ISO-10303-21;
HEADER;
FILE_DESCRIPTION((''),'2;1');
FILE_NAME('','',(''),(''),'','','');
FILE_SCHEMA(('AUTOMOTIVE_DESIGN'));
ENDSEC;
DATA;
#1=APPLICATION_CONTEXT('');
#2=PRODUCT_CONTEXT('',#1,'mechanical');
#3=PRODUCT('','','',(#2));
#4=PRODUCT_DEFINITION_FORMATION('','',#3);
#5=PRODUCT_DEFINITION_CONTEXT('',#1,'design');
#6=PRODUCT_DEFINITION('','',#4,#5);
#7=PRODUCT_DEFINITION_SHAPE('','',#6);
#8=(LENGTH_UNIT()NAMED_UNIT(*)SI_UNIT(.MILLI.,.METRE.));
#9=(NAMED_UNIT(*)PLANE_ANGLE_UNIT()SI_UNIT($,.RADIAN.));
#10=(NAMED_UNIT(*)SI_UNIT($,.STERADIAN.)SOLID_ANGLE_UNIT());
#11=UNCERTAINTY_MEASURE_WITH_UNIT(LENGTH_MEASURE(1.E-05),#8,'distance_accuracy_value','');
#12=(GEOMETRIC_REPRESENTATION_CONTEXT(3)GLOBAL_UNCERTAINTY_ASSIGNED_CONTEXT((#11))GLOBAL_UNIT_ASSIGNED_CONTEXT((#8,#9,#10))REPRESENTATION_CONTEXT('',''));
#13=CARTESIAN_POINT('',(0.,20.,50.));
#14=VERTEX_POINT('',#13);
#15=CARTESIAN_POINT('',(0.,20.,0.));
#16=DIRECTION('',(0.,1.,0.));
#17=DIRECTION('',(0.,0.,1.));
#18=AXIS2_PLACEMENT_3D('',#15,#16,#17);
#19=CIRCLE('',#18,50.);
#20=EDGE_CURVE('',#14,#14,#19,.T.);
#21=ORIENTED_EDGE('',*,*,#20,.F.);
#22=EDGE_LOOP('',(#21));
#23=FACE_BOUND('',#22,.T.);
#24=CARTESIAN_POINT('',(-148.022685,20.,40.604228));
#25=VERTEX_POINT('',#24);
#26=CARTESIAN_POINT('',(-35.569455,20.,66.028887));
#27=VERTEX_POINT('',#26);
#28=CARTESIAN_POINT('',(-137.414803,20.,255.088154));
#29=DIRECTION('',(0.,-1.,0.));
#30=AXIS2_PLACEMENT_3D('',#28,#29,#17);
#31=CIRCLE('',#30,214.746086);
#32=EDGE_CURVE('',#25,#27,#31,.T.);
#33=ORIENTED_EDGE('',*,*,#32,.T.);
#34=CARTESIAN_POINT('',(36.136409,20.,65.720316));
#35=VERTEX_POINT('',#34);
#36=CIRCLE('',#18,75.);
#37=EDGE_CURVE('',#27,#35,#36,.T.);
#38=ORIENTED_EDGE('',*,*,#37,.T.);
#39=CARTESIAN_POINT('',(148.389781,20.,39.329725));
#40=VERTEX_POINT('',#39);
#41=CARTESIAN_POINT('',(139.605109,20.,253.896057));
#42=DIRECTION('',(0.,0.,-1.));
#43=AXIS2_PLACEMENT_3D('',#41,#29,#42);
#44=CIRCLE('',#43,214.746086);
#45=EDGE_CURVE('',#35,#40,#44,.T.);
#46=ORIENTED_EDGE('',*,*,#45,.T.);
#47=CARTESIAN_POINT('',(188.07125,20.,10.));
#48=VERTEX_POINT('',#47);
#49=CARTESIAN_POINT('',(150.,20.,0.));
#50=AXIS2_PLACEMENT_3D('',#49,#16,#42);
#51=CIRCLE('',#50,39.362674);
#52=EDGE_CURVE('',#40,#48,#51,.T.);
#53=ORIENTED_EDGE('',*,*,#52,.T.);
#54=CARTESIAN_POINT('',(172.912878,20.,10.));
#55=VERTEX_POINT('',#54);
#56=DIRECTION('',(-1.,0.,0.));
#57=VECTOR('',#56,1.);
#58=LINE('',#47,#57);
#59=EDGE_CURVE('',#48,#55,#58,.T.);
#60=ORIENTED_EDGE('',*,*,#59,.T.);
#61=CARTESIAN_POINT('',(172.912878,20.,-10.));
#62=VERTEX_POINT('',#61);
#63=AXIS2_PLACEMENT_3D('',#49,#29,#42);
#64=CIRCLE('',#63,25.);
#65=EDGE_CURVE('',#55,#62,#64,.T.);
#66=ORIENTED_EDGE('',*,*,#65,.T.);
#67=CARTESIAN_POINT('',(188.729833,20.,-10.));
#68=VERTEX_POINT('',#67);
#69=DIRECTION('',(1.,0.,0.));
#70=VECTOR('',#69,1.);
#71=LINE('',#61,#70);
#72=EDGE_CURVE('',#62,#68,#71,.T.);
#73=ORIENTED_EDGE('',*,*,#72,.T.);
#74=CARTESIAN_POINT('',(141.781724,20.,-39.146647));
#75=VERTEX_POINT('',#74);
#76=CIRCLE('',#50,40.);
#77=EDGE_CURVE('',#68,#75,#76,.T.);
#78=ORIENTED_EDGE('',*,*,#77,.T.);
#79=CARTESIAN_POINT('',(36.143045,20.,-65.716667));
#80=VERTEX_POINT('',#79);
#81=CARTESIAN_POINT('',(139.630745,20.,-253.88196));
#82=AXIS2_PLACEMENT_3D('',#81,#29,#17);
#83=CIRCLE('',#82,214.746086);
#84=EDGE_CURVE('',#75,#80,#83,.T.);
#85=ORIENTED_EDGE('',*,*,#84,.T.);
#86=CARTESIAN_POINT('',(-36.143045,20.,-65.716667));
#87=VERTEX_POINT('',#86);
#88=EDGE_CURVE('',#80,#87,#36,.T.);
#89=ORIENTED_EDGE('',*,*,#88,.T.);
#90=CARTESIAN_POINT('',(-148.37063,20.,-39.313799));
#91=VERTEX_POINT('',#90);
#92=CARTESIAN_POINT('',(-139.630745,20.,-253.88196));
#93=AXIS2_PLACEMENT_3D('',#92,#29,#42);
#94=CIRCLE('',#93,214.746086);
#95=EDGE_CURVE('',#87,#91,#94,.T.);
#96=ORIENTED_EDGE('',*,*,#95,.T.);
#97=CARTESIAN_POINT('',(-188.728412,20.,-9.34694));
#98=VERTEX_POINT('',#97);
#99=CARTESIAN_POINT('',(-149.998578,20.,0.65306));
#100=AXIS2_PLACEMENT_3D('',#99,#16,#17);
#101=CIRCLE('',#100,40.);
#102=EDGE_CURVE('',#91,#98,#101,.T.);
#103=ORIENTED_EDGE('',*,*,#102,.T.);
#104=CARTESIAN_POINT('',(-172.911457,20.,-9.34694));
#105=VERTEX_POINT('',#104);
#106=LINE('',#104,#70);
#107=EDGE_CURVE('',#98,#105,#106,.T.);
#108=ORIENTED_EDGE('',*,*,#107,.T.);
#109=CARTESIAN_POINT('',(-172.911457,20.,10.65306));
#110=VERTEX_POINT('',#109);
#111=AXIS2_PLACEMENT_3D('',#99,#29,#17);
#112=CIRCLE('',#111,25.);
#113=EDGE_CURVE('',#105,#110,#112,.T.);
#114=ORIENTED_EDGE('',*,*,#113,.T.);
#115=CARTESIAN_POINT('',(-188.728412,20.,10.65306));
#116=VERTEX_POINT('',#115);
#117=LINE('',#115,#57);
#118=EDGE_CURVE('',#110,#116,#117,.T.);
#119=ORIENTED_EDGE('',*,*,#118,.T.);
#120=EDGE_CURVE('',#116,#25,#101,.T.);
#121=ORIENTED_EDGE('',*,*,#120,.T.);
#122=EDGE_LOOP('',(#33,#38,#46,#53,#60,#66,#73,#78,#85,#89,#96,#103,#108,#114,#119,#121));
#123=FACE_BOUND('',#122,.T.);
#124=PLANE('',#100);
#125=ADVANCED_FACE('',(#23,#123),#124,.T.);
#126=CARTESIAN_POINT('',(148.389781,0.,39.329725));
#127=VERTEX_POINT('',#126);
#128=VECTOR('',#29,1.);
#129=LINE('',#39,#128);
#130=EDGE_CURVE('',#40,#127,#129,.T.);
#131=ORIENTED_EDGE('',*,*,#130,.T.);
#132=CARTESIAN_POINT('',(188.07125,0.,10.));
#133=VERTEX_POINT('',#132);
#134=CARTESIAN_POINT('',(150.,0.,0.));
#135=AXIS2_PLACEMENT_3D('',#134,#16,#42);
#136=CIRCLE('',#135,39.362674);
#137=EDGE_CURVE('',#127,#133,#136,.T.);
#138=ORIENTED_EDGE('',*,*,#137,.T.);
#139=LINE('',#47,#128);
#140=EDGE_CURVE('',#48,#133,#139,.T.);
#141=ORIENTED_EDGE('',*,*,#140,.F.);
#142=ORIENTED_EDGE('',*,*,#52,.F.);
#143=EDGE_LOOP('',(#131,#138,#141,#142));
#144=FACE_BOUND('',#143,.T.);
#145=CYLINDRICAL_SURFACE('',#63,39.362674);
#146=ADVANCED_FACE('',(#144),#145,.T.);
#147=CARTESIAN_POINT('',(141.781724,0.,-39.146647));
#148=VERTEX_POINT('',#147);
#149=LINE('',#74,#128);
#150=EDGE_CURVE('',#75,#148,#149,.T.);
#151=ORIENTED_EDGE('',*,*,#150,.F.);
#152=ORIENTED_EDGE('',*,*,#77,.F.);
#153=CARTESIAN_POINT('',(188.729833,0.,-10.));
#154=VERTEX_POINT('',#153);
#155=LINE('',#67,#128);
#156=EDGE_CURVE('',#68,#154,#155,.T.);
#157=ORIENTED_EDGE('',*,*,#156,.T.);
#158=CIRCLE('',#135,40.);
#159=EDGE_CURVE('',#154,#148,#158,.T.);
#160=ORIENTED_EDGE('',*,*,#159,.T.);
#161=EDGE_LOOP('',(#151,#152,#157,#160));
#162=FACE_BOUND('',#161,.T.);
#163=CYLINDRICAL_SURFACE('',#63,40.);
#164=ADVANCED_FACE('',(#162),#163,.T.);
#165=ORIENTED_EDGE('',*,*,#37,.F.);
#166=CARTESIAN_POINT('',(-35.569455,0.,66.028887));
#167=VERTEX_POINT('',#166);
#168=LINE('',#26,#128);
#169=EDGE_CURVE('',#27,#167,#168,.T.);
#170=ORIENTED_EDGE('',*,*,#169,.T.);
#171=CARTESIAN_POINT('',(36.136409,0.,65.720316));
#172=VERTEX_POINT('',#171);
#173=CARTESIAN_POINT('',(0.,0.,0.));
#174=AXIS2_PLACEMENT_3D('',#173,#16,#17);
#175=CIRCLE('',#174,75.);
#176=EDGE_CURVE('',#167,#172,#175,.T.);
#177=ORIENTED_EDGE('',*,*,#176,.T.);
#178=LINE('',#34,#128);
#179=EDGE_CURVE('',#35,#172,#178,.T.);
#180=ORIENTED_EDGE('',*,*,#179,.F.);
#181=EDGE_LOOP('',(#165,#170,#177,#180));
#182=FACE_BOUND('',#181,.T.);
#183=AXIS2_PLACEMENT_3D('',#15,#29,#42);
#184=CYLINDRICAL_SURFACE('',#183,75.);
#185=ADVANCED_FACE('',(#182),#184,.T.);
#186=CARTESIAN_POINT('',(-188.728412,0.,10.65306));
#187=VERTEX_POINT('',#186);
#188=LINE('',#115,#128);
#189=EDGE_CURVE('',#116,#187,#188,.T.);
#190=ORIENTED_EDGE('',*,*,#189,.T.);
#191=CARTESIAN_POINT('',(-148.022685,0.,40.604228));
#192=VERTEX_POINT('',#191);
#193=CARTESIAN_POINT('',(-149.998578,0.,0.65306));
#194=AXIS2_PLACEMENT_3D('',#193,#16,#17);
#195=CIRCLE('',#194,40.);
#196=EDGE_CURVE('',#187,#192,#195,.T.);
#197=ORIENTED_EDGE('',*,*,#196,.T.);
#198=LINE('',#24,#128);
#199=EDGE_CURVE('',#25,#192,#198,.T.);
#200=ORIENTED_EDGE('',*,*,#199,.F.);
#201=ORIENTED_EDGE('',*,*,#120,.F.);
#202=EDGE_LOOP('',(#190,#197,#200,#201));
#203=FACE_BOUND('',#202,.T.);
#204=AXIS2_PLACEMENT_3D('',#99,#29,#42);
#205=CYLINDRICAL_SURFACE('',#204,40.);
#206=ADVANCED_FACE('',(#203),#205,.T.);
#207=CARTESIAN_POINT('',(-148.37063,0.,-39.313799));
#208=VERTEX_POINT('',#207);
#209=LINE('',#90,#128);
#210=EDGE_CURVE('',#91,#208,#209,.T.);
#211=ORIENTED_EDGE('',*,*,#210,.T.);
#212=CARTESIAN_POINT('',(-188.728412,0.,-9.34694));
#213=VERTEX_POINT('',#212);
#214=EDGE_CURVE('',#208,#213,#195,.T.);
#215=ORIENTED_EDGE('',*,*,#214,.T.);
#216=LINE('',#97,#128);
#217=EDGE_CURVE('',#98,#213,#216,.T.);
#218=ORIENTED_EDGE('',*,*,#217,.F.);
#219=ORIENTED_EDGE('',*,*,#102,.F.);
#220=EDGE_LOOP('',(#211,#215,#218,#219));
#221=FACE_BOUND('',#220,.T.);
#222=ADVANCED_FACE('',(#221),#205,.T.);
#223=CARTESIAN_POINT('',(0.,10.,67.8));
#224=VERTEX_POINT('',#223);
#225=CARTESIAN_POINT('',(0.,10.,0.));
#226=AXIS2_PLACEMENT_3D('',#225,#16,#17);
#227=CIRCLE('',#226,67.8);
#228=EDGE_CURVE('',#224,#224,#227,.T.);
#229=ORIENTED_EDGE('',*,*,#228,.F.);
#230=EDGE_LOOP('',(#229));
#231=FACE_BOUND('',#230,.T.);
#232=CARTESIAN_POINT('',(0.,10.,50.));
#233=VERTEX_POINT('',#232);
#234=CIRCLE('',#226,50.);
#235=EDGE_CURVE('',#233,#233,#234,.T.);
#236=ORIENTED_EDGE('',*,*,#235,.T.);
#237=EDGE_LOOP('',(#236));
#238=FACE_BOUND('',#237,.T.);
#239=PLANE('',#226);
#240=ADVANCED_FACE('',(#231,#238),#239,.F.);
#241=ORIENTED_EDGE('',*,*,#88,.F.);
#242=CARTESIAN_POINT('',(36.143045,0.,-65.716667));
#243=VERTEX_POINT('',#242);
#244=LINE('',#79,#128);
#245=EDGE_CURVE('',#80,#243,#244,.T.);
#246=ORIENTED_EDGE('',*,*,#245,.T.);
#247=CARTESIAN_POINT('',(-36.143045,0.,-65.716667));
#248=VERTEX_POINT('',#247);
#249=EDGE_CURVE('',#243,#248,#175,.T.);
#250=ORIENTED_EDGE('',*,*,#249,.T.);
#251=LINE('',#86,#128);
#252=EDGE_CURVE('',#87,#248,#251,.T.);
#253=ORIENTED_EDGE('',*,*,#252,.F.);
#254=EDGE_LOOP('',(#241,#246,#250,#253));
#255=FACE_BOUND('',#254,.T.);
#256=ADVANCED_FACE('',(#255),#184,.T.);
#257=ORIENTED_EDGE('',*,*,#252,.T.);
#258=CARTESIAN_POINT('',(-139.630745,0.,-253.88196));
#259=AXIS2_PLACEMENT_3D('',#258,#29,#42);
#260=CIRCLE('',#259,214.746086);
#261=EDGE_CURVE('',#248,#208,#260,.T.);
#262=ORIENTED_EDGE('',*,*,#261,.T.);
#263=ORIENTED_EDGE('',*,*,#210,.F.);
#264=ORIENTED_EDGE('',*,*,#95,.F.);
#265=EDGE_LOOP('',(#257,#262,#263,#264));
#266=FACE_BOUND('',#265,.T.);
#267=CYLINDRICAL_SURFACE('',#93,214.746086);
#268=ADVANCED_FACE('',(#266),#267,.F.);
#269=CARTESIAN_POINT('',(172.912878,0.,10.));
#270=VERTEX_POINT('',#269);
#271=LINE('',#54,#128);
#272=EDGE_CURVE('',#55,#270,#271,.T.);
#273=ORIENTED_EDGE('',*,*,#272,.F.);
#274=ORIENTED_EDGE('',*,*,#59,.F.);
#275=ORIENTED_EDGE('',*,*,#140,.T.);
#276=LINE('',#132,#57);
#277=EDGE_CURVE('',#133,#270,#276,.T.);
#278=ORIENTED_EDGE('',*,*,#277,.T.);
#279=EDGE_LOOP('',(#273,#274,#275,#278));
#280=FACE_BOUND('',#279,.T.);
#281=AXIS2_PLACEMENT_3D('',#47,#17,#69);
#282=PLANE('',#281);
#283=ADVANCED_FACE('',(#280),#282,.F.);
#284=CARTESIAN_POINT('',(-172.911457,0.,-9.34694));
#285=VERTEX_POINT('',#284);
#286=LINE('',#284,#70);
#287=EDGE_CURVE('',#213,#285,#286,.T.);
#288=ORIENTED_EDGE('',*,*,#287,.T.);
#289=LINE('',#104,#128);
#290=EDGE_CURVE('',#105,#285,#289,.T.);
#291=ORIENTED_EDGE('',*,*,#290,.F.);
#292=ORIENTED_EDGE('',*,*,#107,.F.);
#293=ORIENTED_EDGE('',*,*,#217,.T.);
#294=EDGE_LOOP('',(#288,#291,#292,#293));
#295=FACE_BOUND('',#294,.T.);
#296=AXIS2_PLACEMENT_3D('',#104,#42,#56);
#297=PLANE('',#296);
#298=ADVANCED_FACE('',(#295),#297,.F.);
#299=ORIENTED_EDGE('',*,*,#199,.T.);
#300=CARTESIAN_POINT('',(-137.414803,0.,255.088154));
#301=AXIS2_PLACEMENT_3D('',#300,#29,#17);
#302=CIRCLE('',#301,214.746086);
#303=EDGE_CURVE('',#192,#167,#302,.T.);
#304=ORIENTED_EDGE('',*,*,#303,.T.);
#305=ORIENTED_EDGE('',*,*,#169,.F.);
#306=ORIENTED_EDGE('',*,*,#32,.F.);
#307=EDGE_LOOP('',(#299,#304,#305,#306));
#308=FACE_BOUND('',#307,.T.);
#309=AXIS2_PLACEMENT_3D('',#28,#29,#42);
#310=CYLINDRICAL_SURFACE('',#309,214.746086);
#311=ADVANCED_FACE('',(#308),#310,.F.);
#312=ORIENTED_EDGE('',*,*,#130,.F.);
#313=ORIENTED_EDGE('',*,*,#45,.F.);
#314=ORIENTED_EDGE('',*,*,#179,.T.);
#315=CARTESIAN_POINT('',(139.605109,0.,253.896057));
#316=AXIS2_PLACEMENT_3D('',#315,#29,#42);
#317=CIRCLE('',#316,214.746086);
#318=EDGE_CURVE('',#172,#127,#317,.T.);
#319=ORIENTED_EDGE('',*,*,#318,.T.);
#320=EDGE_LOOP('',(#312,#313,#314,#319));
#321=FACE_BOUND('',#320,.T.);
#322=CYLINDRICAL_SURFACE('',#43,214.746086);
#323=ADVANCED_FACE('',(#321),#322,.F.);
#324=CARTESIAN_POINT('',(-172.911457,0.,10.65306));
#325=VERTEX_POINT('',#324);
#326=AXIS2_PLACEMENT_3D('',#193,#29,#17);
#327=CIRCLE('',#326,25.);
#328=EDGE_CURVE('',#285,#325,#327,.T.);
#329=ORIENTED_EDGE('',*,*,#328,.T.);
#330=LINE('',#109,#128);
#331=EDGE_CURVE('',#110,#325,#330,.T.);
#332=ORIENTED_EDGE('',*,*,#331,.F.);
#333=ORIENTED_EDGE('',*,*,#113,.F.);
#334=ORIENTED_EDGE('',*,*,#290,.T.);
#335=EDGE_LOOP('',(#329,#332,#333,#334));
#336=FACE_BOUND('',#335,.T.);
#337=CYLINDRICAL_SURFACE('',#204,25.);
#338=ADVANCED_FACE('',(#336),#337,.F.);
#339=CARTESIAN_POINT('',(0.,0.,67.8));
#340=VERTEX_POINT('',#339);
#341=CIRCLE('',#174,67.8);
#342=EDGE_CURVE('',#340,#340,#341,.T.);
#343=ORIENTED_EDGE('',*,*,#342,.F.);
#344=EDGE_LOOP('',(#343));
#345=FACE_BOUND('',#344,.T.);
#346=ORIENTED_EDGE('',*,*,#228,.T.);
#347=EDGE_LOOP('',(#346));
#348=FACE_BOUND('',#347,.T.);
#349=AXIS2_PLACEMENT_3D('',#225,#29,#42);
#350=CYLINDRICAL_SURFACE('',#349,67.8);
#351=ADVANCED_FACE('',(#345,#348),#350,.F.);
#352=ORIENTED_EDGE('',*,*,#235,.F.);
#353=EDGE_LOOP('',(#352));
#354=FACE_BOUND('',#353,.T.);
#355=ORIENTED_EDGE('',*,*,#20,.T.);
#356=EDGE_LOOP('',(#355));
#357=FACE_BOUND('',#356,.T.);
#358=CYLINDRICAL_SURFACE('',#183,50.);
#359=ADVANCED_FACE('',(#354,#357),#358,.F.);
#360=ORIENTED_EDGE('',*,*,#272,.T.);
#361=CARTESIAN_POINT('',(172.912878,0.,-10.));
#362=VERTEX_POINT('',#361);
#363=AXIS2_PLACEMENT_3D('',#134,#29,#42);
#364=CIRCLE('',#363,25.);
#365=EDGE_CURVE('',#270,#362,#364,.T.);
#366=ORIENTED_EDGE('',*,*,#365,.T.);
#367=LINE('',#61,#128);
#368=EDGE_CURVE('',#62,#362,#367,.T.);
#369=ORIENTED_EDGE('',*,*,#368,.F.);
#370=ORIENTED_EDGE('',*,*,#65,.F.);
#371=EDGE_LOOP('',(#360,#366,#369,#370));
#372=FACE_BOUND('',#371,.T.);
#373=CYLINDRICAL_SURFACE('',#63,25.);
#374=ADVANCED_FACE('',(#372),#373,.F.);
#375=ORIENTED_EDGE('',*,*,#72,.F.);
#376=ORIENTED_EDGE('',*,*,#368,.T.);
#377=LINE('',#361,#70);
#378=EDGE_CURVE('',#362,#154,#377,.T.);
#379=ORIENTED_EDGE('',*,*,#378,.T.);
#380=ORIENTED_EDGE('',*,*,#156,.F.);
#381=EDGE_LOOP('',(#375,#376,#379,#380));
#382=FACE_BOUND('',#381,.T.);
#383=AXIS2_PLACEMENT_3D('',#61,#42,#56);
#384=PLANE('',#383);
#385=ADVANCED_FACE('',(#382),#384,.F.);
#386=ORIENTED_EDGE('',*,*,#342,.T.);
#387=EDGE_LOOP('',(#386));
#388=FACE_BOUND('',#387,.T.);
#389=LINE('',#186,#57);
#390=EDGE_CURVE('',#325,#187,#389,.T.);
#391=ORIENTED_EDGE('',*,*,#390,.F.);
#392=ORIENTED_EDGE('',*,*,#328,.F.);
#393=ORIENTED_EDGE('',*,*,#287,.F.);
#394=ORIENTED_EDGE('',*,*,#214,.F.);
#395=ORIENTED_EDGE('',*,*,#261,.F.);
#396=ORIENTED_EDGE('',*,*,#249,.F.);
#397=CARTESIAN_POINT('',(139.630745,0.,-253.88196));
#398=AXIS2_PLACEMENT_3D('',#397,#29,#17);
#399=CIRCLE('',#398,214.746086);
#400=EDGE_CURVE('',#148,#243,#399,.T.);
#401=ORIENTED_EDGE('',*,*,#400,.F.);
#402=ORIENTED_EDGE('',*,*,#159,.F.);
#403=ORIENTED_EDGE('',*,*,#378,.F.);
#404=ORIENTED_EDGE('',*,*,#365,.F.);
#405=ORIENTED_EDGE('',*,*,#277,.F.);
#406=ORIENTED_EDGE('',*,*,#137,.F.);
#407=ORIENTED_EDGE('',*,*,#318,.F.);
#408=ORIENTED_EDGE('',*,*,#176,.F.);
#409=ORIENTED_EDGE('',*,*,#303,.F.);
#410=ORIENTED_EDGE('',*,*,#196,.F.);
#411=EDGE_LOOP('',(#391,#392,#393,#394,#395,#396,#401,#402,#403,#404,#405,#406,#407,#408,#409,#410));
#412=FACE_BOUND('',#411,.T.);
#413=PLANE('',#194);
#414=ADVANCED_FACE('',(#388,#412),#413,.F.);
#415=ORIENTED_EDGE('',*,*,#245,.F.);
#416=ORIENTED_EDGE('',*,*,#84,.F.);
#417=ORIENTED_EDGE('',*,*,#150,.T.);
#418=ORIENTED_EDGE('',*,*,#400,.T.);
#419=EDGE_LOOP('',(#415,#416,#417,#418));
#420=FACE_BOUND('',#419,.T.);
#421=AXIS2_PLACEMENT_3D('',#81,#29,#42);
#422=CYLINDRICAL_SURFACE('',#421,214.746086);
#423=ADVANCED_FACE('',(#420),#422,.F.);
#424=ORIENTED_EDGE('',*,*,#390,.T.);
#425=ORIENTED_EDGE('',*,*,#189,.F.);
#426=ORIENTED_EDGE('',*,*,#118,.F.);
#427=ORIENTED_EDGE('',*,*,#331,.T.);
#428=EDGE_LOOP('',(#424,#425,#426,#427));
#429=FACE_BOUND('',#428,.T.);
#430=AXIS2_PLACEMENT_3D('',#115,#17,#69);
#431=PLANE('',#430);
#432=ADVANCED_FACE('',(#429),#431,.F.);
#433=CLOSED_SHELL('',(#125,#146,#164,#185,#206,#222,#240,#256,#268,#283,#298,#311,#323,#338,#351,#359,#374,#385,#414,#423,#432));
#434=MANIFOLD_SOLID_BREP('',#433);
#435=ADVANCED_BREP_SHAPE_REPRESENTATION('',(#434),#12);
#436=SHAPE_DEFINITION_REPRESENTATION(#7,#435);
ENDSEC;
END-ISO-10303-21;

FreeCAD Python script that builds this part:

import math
import FreeCAD as App
import Part
import Sketcher
from FreeCAD import Vector
Q = App.Units.Quantity

doc = App.newDocument("Part")
body = doc.addObject("PartDesign::Body", "Body")

# Sketch on XZ plane
sketch1 = doc.addObject("Sketcher::SketchObject", "Sketch")
body.addObject(sketch1)
sketch1.AttachmentSupport = (doc.XZ_Plane, [""])
sketch1.MapMode = "FlatFace"
sketch1.addGeometry([
    Part.LineSegment(Vector(172.912878, -10, 0), Vector(188.729833, -10, 0)),  # 0
    Part.ArcOfCircle(Part.Circle(Vector(150, 0, 0), Vector(0, 0, 1), 40), math.radians(-101.856246), math.radians(-14.477512)),  # 1
    Part.ArcOfCircle(Part.Circle(Vector(139.630745, -253.88196, 0), Vector(0, 0, 1), 214.746086), math.radians(89.426094), math.radians(118.810043)),  # 2
    Part.ArcOfCircle(Part.Circle(Vector(0, 0, 0), Vector(0, 0, 1), 75), math.radians(-118.810043), math.radians(-61.189957)),  # 3
    Part.ArcOfCircle(Part.Circle(Vector(-139.630745, -253.88196, 0), Vector(0, 0, 1), 214.746086), math.radians(61.189957), math.radians(92.332508)),  # 4
    Part.ArcOfCircle(Part.Circle(Vector(-149.998578, 0.65306, 0), Vector(0, 0, 1), 40), math.radians(-165.522488), math.radians(-87.667492)),  # 5
    Part.LineSegment(Vector(-188.728412, -9.34694, 0), Vector(-172.911457, -9.34694, 0)),  # 6
    Part.ArcOfCircle(Part.Circle(Vector(-149.998578, 0.65306, 0), Vector(0, 0, 1), 25), math.radians(-156.421822), math.radians(156.421822)),  # 7
    Part.LineSegment(Vector(-172.911457, 10.65306, 0), Vector(-188.728412, 10.65306, 0)),  # 8
    Part.ArcOfCircle(Part.Circle(Vector(-149.998578, 0.65306, 0), Vector(0, 0, 1), 40), math.radians(87.16859), math.radians(165.522488)),  # 9
    Part.ArcOfCircle(Part.Circle(Vector(-137.414803, 255.088154, 0), Vector(0, 0, 1), 214.746086), math.radians(-92.83141), math.radians(-61.68886)),  # 10
    Part.ArcOfCircle(Part.Circle(Vector(0, 0, 0), Vector(0, 0, 1), 75), math.radians(61.195742), math.radians(118.31114)),  # 11
    Part.ArcOfCircle(Part.Circle(Vector(139.605109, 253.896057, 0), Vector(0, 0, 1), 214.746086), math.radians(-118.804258), math.radians(-87.655533)),  # 12
    Part.ArcOfCircle(Part.Circle(Vector(150, 0, 0), Vector(0, 0, 1), 39.362674), math.radians(14.717169), math.radians(92.344467)),  # 13
    Part.LineSegment(Vector(188.07125, 10, 0), Vector(172.912878, 10, 0)),  # 14
    Part.ArcOfCircle(Part.Circle(Vector(150, 0, 0), Vector(0, 0, 1), 25), math.radians(23.578178), math.radians(336.421822)),  # 15
    Part.Circle(Vector(0, 0, 0), Vector(0, 0, 1), 50),  # 16
], False)
sketch1.addConstraint([
    Sketcher.Constraint("Coincident", 0, 2, 1, 2),
    Sketcher.Constraint("Coincident", 1, 1, 2, 1),
    Sketcher.Constraint("Tangent", 2, 2, 3, 2),
    Sketcher.Constraint("Tangent", 3, 1, 4, 1),
    Sketcher.Constraint("Tangent", 4, 2, 5, 2),
    Sketcher.Constraint("Coincident", 5, 1, 6, 1),
    Sketcher.Constraint("Coincident", 6, 2, 7, 1),
    Sketcher.Constraint("Coincident", 7, 2, 8, 1),
    Sketcher.Constraint("Coincident", 8, 2, 9, 2),
    Sketcher.Constraint("Tangent", 9, 1, 10, 1),
    Sketcher.Constraint("Tangent", 10, 2, 11, 2),
    Sketcher.Constraint("Tangent", 11, 1, 12, 1),
    Sketcher.Constraint("Tangent", 12, 2, 13, 2),
    Sketcher.Constraint("Coincident", 13, 1, 14, 1),
    Sketcher.Constraint("Coincident", 14, 2, 15, 1),
    Sketcher.Constraint("Coincident", 15, 2, 0, 1),
    Sketcher.Constraint("Horizontal", 0),
    Sketcher.Constraint("Horizontal", 6),
    Sketcher.Constraint("Horizontal", 8),
    Sketcher.Constraint("Horizontal", 14),
    Sketcher.Constraint("Coincident", 3, 3, -1, 1),
    Sketcher.Constraint("Coincident", 11, 3, -1, 1),
    Sketcher.Constraint("Coincident", 16, 3, -1, 1),
    Sketcher.Constraint("Coincident", 7, 3, 5, 3),
    Sketcher.Constraint("Coincident", 9, 3, 5, 3),
    Sketcher.Constraint("Coincident", 13, 3, 1, 3),
    Sketcher.Constraint("Coincident", 15, 3, 1, 3),
    Sketcher.Constraint("Equal", 2, 4),
    Sketcher.Constraint("Equal", 1, 5),
    Sketcher.Constraint("Equal", 5, 9),
    Sketcher.Constraint("Equal", 4, 10),
    Sketcher.Constraint("Equal", 3, 11),
    Sketcher.Constraint("Equal", 10, 12),
    Sketcher.Constraint("Equal", 7, 15),
    Sketcher.Constraint("Symmetric", 14, 2, 15, 2, -1),
    Sketcher.Constraint("Horizontal", 2, 3, 4, 3),
    Sketcher.Constraint("Vertical", 6, 2, 7, 2),
    Sketcher.Constraint("Equal", 0, 6),
    Sketcher.Constraint("Diameter", 16, Q("100 mm")),
    Sketcher.Constraint("Radius", 1, Q("40 mm")),
    Sketcher.Constraint("Radius", 3, Q("75 mm")),
    Sketcher.Constraint("Radius", 7, Q("25 mm")),
    Sketcher.Constraint("DistanceX", -1, 1, 1, 3, Q("150 mm")),
    Sketcher.Constraint("DistanceY", 0, 2, -1, 1, Q("10 mm")),
    Sketcher.Constraint("Radius", 2, Q("214.746086 mm")),
    Sketcher.Constraint("Radius", 13, Q("39.362674 mm")),
    Sketcher.Constraint("DistanceY", 4, 2, -1, 1, Q("39.313799 mm")),
    Sketcher.Constraint("DistanceY", 2, 3, -1, 1, Q("253.88196 mm")),
])
pad1 = doc.addObject("PartDesign::Pad", "Pad")
body.addObject(pad1)
pad1.Profile = sketch1
pad1.Length = 20
pad1.Reversed = True

# Sketch on XZ plane
sketch2 = doc.addObject("Sketcher::SketchObject", "Sketch001")
body.addObject(sketch2)
sketch2.AttachmentSupport = (doc.XZ_Plane, [""])
sketch2.MapMode = "FlatFace"
sketch2.addGeometry([
    Part.Circle(Vector(0, 0, 0), Vector(0, 0, 1), 67.8),
    Part.Circle(Vector(0, 0, 0), Vector(0, 0, 1), 50),
], False)
sketch2.addConstraint([
    Sketcher.Constraint("Coincident", 0, 3, -1, 1),
    Sketcher.Constraint("Coincident", 1, 3, -1, 1),
    Sketcher.Constraint("Diameter", 1, Q("100 mm")),
    Sketcher.Constraint("Diameter", 0, Q("135.6 mm")),
])
pocket1 = doc.addObject("PartDesign::Pocket", "Pocket")
body.addObject(pocket1)
pocket1.Profile = sketch2
pocket1.Length = 10

doc.recompute()
